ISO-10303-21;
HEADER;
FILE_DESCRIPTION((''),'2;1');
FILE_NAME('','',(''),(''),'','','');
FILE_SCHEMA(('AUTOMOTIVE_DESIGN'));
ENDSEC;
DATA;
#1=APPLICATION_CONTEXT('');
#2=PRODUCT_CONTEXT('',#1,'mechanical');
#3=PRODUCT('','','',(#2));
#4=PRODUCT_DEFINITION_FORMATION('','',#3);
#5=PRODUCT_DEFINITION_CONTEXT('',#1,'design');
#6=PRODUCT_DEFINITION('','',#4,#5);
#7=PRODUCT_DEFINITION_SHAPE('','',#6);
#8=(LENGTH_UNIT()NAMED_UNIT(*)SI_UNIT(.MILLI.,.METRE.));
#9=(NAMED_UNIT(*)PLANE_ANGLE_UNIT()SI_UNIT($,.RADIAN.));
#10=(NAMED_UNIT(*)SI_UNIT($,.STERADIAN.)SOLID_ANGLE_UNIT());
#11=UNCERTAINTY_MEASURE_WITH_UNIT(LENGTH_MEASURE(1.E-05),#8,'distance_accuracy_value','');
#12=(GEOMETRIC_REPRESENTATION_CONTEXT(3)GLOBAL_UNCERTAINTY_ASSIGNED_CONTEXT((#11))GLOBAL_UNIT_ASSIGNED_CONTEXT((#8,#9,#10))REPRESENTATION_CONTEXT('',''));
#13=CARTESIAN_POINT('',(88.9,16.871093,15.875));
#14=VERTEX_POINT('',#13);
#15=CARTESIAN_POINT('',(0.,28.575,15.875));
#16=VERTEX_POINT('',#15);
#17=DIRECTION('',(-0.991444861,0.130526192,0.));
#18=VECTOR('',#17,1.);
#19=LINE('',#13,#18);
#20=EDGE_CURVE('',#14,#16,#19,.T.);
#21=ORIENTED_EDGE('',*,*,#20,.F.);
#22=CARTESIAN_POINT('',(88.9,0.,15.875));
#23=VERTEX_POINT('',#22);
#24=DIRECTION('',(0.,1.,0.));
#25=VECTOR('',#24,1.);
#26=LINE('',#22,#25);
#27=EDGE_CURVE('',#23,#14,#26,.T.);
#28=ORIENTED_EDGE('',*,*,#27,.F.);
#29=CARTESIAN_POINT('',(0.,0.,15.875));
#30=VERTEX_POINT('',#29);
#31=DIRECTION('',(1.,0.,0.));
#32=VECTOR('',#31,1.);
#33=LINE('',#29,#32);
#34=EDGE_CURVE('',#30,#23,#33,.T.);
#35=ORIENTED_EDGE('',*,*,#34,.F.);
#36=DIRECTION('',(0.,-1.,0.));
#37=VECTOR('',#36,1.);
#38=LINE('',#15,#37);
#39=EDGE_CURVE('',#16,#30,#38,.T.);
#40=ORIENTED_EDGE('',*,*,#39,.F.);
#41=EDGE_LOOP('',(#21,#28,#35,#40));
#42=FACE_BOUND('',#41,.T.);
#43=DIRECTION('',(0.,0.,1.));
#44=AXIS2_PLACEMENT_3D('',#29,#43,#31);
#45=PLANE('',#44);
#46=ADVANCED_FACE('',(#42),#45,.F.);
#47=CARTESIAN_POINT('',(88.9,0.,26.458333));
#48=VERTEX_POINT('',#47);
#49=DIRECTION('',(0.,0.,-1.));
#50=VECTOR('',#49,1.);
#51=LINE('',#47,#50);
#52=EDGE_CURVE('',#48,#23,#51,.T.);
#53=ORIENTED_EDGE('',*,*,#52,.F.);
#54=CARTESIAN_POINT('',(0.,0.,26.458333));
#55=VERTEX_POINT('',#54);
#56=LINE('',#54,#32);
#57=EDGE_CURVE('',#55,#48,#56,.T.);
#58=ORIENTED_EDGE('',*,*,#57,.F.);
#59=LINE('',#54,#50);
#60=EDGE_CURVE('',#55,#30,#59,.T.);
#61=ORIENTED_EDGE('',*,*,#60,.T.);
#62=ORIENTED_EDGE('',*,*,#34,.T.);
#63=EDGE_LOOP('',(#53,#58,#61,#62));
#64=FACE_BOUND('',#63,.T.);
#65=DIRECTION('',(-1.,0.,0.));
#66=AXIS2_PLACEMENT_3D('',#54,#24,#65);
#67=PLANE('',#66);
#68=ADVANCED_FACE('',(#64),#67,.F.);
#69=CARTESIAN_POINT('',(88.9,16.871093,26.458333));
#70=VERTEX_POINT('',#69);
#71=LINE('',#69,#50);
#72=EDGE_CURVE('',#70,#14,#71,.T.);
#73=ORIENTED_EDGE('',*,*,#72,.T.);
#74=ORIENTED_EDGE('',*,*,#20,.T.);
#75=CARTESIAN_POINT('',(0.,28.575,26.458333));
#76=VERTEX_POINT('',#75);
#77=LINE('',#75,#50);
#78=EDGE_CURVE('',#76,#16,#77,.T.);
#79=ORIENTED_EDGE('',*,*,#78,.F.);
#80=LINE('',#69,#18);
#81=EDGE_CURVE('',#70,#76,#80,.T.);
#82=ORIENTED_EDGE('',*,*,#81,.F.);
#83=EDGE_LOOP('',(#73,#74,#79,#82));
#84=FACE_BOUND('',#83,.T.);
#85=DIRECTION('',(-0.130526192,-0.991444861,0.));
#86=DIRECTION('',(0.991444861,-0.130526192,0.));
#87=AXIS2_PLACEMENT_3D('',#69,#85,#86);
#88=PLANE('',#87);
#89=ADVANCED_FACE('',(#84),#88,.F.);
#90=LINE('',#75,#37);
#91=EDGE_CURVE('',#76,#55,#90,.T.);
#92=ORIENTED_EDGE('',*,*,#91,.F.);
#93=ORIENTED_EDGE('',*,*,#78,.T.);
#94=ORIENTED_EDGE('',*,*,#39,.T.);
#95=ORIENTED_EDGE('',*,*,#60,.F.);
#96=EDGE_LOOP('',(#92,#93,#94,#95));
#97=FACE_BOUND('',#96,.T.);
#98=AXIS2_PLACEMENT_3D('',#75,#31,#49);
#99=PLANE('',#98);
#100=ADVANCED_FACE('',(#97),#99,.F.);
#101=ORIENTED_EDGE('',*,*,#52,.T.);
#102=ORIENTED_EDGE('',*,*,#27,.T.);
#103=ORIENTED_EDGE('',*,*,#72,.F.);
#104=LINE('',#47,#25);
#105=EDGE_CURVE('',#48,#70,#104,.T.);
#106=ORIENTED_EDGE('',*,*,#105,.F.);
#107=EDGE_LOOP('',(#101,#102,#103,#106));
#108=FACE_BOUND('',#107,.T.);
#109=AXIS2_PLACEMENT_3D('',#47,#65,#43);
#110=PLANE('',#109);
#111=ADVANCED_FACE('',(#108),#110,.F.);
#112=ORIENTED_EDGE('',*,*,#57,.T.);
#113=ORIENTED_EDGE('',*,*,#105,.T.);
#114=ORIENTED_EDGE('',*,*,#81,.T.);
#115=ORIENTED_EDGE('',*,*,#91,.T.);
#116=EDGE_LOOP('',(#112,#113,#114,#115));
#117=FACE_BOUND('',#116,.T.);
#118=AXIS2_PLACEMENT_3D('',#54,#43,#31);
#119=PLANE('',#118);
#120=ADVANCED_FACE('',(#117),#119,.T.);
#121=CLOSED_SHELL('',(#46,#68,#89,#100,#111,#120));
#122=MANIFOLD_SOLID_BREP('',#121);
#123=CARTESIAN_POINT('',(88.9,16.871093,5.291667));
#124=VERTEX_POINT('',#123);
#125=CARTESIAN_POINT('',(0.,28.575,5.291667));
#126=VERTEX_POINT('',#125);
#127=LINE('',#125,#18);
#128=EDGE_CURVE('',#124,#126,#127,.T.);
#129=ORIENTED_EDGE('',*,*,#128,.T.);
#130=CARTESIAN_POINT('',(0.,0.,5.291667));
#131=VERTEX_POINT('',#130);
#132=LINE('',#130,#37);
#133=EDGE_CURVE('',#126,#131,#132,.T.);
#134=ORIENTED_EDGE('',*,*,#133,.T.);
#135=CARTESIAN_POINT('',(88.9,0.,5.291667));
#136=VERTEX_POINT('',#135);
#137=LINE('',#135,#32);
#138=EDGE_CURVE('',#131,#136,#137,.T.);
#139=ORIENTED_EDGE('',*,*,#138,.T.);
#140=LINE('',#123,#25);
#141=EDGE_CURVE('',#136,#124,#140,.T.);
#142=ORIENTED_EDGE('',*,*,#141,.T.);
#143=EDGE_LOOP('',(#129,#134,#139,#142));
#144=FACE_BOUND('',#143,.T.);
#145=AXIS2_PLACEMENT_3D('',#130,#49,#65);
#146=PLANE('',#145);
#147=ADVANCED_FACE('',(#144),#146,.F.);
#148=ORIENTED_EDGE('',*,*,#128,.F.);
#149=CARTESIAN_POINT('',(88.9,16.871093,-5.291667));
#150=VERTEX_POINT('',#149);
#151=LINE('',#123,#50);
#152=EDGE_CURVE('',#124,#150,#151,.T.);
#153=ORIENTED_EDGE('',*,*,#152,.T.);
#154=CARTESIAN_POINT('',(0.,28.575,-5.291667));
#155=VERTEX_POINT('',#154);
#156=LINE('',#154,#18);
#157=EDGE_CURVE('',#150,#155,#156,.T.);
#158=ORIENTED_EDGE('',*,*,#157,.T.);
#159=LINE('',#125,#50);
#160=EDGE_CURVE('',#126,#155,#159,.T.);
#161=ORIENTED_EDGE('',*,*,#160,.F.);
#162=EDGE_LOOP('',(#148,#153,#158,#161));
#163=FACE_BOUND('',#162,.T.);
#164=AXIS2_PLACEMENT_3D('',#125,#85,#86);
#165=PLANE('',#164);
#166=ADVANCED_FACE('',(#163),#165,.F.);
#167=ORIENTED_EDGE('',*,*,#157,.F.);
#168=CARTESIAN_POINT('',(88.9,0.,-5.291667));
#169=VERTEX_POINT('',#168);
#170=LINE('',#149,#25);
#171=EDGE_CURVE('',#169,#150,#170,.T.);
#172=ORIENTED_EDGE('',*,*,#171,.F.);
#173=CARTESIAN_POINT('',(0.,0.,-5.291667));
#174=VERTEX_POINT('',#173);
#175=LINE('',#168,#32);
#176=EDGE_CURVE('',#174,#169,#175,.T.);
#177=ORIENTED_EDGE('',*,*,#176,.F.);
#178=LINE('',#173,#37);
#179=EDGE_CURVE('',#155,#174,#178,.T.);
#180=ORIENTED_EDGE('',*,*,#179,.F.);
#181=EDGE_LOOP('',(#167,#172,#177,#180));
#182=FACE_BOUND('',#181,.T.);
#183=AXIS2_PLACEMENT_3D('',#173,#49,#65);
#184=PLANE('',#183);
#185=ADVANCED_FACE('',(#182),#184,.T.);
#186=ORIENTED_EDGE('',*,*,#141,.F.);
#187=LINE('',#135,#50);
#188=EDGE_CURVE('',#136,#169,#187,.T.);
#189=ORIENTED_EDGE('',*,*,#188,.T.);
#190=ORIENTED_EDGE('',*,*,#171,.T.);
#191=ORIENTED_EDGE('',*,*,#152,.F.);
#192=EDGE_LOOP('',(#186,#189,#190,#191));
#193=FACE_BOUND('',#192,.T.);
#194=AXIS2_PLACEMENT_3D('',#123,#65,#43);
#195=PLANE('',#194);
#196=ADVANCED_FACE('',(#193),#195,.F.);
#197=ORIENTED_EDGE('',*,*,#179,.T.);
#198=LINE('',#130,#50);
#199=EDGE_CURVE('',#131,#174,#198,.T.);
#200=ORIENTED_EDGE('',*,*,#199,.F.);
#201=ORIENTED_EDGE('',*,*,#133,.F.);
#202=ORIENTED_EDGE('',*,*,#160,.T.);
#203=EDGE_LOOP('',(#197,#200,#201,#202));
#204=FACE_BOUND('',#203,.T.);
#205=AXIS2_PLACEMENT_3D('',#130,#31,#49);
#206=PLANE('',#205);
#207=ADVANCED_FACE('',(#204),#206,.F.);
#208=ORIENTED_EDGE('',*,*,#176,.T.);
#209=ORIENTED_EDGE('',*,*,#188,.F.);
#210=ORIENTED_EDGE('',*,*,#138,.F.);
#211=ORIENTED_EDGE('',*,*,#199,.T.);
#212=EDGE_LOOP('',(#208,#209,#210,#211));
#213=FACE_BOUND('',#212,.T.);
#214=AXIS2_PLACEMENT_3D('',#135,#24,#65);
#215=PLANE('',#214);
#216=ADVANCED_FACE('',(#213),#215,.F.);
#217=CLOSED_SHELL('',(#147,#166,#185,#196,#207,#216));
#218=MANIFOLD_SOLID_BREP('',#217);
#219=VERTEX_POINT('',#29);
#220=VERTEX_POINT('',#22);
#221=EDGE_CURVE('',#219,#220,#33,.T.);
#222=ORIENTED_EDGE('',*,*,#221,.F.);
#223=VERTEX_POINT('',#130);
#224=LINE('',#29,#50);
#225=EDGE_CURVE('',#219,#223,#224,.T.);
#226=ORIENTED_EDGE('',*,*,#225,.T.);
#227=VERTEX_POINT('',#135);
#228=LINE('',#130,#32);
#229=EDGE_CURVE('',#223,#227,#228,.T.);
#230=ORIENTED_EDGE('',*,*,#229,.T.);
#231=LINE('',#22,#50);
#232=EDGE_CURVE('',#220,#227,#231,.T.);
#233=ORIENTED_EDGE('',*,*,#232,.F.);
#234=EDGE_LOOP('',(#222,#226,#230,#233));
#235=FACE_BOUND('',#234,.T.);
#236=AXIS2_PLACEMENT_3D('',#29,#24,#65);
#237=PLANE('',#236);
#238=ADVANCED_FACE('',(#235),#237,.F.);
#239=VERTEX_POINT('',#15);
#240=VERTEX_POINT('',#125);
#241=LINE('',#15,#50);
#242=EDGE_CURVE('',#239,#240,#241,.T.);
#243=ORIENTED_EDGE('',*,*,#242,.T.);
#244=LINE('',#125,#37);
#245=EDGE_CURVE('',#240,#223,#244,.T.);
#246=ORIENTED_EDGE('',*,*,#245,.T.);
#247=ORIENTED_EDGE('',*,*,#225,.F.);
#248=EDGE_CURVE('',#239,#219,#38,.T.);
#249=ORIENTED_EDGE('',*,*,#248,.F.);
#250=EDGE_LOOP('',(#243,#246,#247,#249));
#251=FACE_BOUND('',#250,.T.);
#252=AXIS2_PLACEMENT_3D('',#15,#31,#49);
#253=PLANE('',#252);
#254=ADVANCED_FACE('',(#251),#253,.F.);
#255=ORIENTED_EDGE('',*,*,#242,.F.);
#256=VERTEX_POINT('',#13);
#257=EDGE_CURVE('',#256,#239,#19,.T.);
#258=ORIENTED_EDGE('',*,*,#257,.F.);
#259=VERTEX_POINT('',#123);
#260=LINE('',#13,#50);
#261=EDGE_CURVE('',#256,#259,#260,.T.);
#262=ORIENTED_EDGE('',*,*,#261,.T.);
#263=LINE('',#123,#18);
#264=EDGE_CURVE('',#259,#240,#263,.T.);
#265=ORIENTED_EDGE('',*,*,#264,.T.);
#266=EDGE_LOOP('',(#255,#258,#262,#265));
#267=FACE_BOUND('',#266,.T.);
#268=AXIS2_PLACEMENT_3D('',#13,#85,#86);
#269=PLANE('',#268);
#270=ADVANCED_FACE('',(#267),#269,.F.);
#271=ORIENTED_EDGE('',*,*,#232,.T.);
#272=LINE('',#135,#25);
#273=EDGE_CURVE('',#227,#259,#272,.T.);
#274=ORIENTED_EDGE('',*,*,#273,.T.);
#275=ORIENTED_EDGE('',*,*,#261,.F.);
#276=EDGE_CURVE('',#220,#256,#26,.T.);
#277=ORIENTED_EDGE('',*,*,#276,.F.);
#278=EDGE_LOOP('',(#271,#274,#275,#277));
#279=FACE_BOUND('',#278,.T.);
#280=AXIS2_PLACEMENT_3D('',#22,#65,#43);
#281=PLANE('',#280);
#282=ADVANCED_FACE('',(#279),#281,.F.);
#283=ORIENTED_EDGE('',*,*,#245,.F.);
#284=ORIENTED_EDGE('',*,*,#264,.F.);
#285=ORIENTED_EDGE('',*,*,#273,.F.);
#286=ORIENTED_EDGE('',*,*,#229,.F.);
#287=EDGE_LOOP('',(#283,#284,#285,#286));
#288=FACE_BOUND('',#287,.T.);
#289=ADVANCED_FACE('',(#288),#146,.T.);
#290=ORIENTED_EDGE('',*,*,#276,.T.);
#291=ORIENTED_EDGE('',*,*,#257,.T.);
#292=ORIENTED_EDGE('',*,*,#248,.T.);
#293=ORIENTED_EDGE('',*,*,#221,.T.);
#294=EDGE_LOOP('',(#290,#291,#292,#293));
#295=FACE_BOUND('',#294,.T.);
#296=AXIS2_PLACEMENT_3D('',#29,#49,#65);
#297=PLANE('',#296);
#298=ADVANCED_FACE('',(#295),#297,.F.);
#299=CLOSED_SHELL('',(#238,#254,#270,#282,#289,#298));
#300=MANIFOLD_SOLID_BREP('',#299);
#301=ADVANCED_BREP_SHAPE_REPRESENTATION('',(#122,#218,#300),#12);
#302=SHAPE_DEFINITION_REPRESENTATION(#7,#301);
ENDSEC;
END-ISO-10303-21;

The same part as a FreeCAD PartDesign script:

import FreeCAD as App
import Part
import Sketcher
from FreeCAD import Vector
Q = App.Units.Quantity

doc = App.newDocument("Part")
body = doc.addObject("PartDesign::Body", "Body")

# Sketch on XY plane
sketch1 = body.newObject("Sketcher::SketchObject", "Sketch")
sketch1.AttachmentSupport = (doc.getObject("XY_Plane"), [""])
sketch1.MapMode = "FlatFace"
sketch1.addGeometry([
    Part.LineSegment(Vector(0, 29, 0), Vector(0, 0, 0)),
    Part.LineSegment(Vector(0, 0, 0), Vector(89, 0, 0)),
    Part.LineSegment(Vector(89, 0, 0), Vector(89, 17, 0)),
    Part.LineSegment(Vector(89, 17, 0), Vector(0, 29, 0)),
], False)
sketch1.addConstraint([
    Sketcher.Constraint("Coincident", 0, 2, 1, 1),
    Sketcher.Constraint("Coincident", 1, 2, 2, 1),
    Sketcher.Constraint("Coincident", 2, 2, 3, 1),
    Sketcher.Constraint("Coincident", 3, 2, 0, 1),
    Sketcher.Constraint("Vertical", 0),
    Sketcher.Constraint("Horizontal", 1),
    Sketcher.Constraint("Vertical", 2),
    Sketcher.Constraint("Coincident", 0, 2, -1, 1),
    Sketcher.Constraint("DistanceX", 1, 1, 1, 2, Q("3.5 in")),
    Sketcher.Constraint("Angle", 3, Q("172.5 deg")),
    Sketcher.Constraint("DistanceY", 0, 2, 0, 1, Q("1.125 in")),
])
pad1 = body.newObject("PartDesign::Pad", "Pad")
pad1.Profile = sketch1
pad1.Length = 10.583333
pad1.Midplane = True
body2 = doc.addObject("PartDesign::Body", "Body001")

# Sketch on XY plane
sketch2 = body2.newObject("Sketcher::SketchObject", "Sketch001")
sketch2.AttachmentSupport = (doc.getObject("XY_Plane001"), [""])
sketch2.MapMode = "FlatFace"
sketch2.AttachmentOffset = App.Placement(Vector(0, 0, 5.291667), App.Rotation())
sketch2.addGeometry([
    Part.LineSegment(Vector(89, 17, 0), Vector(0, 29, 0)),
    Part.LineSegment(Vector(0, 29, 0), Vector(0, 0, 0)),
    Part.LineSegment(Vector(0, 0, 0), Vector(89, 0, 0)),
    Part.LineSegment(Vector(89, 0, 0), Vector(89, 17, 0)),
], False)
sketch2.addConstraint([
    Sketcher.Constraint("Coincident", 0, 2, 1, 1),
    Sketcher.Constraint("Coincident", 1, 2, 2, 1),
    Sketcher.Constraint("Coincident", 2, 2, 3, 1),
    Sketcher.Constraint("Coincident", 3, 2, 0, 1),
    Sketcher.Constraint("Vertical", 1),
    Sketcher.Constraint("Horizontal", 2),
    Sketcher.Constraint("Vertical", 3),
    Sketcher.Constraint("Coincident", 1, 2, -1, 1),
    Sketcher.Constraint("DistanceX", 2, 1, 2, 2, Q("3.5 in")),
    Sketcher.Constraint("Angle", 0, Q("172.5 deg")),
    Sketcher.Constraint("DistanceY", 1, 2, 1, 1, Q("1.125 in")),
])
pad2 = body2.newObject("PartDesign::Pad", "Pad001")
pad2.Profile = sketch2
pad2.Length = 10.583333
body3 = doc.addObject("PartDesign::Body", "Body002")

# Sketch on XY plane
sketch3 = body3.newObject("Sketcher::SketchObject", "Sketch002")
sketch3.AttachmentSupport = (doc.getObject("XY_Plane002"), [""])
sketch3.MapMode = "FlatFace"
sketch3.AttachmentOffset = App.Placement(Vector(0, 0, 0.625 * 25.4), App.Rotation())
sketch3.addGeometry([
    Part.LineSegment(Vector(89, 0, 0), Vector(89, 17, 0)),
    Part.LineSegment(Vector(89, 17, 0), Vector(0, 29, 0)),
    Part.LineSegment(Vector(0, 29, 0), Vector(0, 0, 0)),
    Part.LineSegment(Vector(0, 0, 0), Vector(89, 0, 0)),
], False)
sketch3.addConstraint([
    Sketcher.Constraint("Coincident", 0, 2, 1, 1),
    Sketcher.Constraint("Coincident", 1, 2, 2, 1),
    Sketcher.Constraint("Coincident", 2, 2, 3, 1),
    Sketcher.Constraint("Coincident", 3, 2, 0, 1),
    Sketcher.Constraint("Vertical", 0),
    Sketcher.Constraint("Vertical", 2),
    Sketcher.Constraint("Horizontal", 3),
    Sketcher.Constraint("Coincident", 2, 2, -1, 1),
    Sketcher.Constraint("DistanceX", 3, 1, 3, 2, Q("3.5 in")),
    Sketcher.Constraint("Angle", 1, Q("172.5 deg")),
    Sketcher.Constraint("DistanceY", 2, 2, 2, 1, Q("1.125 in")),
])
pad3 = body3.newObject("PartDesign::Pad", "Pad002")
pad3.Profile = sketch3
pad3.Length = 10.583333

doc.recompute()
